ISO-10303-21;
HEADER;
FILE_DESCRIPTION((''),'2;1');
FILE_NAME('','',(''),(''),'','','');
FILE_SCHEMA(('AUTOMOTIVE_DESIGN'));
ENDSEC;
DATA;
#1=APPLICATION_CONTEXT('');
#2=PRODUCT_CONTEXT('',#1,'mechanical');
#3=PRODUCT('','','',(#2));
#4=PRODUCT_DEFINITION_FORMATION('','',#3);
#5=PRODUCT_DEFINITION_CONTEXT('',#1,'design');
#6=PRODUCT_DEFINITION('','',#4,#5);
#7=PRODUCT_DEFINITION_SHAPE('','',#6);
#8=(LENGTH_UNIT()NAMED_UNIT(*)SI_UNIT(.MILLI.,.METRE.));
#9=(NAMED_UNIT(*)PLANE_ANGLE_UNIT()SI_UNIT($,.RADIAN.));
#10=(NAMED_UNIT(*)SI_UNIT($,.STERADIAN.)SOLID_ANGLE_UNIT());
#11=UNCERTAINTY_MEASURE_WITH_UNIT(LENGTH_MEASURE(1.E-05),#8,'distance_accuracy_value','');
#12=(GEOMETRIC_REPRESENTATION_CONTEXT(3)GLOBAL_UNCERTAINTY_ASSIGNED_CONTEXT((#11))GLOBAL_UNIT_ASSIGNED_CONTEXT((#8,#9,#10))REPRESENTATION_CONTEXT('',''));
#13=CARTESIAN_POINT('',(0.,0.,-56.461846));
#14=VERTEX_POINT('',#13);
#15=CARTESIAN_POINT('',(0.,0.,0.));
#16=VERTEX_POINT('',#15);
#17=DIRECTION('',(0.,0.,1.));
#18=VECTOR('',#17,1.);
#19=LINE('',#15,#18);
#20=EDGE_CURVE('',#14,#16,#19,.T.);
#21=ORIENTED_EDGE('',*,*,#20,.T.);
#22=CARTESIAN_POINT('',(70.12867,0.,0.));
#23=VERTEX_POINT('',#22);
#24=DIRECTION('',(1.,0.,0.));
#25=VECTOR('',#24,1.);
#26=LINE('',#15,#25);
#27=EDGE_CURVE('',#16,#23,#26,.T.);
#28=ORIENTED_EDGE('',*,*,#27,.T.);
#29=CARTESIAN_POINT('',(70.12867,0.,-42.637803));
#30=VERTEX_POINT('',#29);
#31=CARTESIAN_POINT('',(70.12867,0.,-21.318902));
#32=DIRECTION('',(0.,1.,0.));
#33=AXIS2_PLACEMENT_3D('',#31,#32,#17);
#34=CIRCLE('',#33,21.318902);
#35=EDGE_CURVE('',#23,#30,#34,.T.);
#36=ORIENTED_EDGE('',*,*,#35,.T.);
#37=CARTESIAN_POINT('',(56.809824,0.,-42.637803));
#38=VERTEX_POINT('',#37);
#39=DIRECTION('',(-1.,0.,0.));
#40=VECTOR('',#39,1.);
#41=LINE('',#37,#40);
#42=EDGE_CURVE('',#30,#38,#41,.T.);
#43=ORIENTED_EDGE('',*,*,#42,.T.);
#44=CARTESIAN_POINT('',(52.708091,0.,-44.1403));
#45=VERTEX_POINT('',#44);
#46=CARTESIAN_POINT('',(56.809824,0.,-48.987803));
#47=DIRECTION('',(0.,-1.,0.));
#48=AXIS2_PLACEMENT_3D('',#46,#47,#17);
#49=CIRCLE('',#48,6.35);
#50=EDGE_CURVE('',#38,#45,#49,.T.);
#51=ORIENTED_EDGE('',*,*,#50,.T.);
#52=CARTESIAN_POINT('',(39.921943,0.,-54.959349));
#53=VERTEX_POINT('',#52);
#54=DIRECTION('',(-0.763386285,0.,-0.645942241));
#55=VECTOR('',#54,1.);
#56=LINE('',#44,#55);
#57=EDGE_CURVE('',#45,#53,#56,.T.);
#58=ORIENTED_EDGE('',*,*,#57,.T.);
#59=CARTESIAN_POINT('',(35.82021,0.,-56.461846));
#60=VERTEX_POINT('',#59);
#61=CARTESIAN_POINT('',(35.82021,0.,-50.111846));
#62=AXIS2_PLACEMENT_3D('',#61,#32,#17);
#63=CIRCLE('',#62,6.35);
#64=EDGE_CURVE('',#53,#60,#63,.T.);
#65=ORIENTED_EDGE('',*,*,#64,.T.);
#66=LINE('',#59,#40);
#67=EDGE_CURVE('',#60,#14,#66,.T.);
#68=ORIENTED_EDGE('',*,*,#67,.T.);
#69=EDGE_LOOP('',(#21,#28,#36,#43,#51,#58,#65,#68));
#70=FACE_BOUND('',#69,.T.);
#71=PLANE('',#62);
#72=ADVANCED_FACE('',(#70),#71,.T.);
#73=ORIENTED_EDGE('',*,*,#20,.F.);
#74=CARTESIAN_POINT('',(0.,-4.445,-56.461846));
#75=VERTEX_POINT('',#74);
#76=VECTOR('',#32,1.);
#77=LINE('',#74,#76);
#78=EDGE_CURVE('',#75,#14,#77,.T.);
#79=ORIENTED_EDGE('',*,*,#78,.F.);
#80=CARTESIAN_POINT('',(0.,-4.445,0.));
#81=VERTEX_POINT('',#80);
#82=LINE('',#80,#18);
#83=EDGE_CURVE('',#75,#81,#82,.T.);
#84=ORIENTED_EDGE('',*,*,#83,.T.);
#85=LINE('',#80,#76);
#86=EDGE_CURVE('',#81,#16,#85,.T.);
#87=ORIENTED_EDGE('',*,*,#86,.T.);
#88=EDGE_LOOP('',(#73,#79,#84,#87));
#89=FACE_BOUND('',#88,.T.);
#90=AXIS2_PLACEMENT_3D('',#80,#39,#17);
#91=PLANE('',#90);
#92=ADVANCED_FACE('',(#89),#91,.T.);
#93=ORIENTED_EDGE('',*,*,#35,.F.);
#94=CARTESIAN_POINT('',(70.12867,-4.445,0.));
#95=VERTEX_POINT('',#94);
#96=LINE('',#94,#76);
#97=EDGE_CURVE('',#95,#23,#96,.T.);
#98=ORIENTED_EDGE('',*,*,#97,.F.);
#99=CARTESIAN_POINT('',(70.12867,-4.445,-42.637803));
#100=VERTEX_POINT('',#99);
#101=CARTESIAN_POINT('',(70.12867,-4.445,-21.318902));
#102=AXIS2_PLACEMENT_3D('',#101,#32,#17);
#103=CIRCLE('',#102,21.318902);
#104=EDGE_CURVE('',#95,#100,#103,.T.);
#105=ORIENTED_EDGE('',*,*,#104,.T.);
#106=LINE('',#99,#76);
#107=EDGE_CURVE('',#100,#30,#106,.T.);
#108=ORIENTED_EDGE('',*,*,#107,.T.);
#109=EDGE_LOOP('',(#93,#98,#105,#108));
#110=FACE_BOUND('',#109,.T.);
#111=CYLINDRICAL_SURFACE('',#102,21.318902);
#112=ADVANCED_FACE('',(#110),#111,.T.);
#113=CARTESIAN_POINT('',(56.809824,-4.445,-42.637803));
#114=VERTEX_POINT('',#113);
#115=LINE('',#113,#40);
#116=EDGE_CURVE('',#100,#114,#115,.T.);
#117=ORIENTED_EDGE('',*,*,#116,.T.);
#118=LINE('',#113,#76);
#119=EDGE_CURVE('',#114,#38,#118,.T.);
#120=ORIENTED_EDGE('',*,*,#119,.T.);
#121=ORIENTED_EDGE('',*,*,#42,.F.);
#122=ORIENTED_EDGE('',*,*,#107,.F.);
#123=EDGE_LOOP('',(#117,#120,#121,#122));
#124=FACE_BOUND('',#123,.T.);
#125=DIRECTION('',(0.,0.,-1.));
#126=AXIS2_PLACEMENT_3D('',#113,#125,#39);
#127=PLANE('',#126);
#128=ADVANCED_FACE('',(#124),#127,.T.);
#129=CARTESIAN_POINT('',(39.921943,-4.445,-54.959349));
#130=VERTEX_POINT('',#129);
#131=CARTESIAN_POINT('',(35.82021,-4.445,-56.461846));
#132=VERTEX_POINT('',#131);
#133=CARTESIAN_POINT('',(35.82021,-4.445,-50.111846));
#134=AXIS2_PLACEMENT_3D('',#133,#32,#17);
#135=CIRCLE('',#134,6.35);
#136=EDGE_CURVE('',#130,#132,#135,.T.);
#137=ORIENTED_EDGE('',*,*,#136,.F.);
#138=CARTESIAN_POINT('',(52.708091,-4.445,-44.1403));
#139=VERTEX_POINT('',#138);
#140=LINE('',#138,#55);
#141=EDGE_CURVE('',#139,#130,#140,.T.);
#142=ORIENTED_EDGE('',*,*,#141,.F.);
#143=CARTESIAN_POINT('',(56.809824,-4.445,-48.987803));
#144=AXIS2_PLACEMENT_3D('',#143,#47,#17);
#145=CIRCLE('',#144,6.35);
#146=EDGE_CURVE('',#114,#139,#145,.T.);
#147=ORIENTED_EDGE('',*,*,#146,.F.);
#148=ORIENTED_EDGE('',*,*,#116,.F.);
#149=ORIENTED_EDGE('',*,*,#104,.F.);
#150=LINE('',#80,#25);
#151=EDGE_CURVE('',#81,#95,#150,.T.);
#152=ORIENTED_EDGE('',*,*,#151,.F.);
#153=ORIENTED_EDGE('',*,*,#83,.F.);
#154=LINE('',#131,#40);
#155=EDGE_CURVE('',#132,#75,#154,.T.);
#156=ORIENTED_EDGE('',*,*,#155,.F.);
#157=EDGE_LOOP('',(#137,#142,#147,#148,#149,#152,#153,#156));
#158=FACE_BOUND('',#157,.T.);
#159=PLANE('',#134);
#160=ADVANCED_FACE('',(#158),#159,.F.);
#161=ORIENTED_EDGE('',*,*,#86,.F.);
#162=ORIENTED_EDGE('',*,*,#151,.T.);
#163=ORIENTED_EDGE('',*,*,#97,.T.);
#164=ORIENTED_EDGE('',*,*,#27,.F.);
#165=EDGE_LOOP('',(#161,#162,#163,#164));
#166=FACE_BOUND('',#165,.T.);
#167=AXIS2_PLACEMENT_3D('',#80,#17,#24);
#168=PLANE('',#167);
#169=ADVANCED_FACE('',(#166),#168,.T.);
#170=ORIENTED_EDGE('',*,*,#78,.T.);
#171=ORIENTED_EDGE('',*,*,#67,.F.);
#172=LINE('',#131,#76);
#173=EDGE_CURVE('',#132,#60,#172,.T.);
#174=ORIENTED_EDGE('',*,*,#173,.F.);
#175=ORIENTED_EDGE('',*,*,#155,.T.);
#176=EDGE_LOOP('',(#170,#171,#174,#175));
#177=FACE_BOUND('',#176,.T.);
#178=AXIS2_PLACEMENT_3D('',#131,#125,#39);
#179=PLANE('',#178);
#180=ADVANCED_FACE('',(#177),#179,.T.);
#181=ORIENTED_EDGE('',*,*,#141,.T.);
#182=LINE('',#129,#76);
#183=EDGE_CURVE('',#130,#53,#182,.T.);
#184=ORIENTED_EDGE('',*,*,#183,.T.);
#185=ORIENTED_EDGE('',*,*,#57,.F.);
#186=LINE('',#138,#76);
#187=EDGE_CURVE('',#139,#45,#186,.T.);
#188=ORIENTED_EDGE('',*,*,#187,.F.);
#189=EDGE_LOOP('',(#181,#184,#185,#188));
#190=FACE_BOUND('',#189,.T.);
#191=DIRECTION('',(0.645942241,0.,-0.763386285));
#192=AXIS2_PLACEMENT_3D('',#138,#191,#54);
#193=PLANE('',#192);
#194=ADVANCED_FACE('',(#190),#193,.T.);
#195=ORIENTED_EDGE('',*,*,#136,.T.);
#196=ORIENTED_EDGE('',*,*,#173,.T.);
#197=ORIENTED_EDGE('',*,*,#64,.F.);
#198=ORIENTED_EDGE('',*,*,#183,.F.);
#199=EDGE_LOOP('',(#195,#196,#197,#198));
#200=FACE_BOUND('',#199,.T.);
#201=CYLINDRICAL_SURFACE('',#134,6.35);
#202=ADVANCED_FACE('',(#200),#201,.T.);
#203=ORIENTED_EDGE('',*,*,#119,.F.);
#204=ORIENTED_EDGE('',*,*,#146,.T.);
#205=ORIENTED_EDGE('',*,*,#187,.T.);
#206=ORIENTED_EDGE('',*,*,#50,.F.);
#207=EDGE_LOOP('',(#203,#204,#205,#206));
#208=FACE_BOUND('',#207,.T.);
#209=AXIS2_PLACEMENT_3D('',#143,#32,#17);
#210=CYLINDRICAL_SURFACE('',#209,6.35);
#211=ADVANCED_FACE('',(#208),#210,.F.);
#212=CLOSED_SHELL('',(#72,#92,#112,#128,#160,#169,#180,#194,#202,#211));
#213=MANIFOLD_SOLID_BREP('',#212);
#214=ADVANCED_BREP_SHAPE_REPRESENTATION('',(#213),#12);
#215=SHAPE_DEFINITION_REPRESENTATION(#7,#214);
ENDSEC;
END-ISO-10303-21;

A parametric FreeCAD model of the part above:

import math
import FreeCAD as App
import Part
import Sketcher

V = App.Vector
Q = App.Units.Quantity

doc = App.newDocument("Part")
params = doc.addObject("Spreadsheet::Sheet", "Params")
for row, (alias, value) in enumerate([
    ("sketch1_radius", "0.25 in"),
    ("pad1_length", "0.175 in"),
], start=1):
    params.set(f"A{row}", alias)
    params.set(f"B{row}", "=" + value)
    params.setAlias(f"B{row}", alias)

body = doc.addObject("PartDesign::Body", "Body")

sketch1 = doc.addObject("Sketcher::SketchObject", "Sketch")
body.addObject(sketch1)
sketch1.AttachmentSupport = (doc.XZ_Plane, [""])
sketch1.MapMode = "FlatFace"
sketch1.addGeometry(Part.LineSegment(V(0, 0, 0), V(70.1, 0, 0)), False)
sketch1.addGeometry(Part.ArcOfCircle(Part.Circle(V(70.1, -21.3, 0), V(0, 0, 1), 21.3), math.radians(-90), math.radians(90)), False)
sketch1.addGeometry(Part.LineSegment(V(70.1, -42.6, 0), V(56.8, -42.6, 0)), False)
sketch1.addGeometry(Part.ArcOfCircle(Part.Circle(V(56.8, -49, 0), V(0, 0, 1), 6.3), math.radians(90), math.radians(130)), False)
sketch1.addGeometry(Part.LineSegment(V(52.7, -44.1, 0), V(39.9, -55, 0)), False)
sketch1.addGeometry(Part.ArcOfCircle(Part.Circle(V(35.8, -50.1, 0), V(0, 0, 1), 6.4), math.radians(-90), math.radians(-50)), False)
sketch1.addGeometry(Part.LineSegment(V(35.8, -56.5, 0), V(0, -56.5, 0)), False)
sketch1.addGeometry(Part.LineSegment(V(0, -56.5, 0), V(0, 0, 0)), False)
sketch1.addConstraint(Sketcher.Constraint("Tangent", 0, 2, 1, 2))
sketch1.addConstraint(Sketcher.Constraint("Tangent", 1, 1, 2, 1))
sketch1.addConstraint(Sketcher.Constraint("Tangent", 2, 2, 3, 1))
sketch1.addConstraint(Sketcher.Constraint("Tangent", 3, 2, 4, 1))
sketch1.addConstraint(Sketcher.Constraint("Tangent", 4, 2, 5, 2))
sketch1.addConstraint(Sketcher.Constraint("Tangent", 5, 1, 6, 1))
sketch1.addConstraint(Sketcher.Constraint("Coincident", 6, 2, 7, 1))
sketch1.addConstraint(Sketcher.Constraint("Coincident", 7, 2, 0, 1))
sketch1.addConstraint(Sketcher.Constraint("Horizontal", 0))
sketch1.addConstraint(Sketcher.Constraint("Horizontal", 2))
sketch1.addConstraint(Sketcher.Constraint("Horizontal", 6))
sketch1.addConstraint(Sketcher.Constraint("Vertical", 7))
sketch1.addConstraint(Sketcher.Constraint("Coincident", 7, 2, -1, 1))
sketch1.addConstraint(Sketcher.Constraint("Equal", 3, 5))
sketch1.addConstraint(Sketcher.Constraint("Radius", 3, Q("0.25 in")))
sketch1.addConstraint(Sketcher.Constraint("Radius", 1, 21.318902))
sketch1.addConstraint(Sketcher.Constraint("DistanceX", 0, 1, 0, 2, 70.12867))
sketch1.addConstraint(Sketcher.Constraint("DistanceX", 6, 2, 6, 1, 35.82021))
sketch1.addConstraint(Sketcher.Constraint("DistanceY", 3, 2, -1, 1, 44.1403))
sketch1.addConstraint(Sketcher.Constraint("Distance", 4, 16.74925))
sketch1.setExpression("Constraints[14]", "Params.sketch1_radius")
pad1 = doc.addObject("PartDesign::Pad", "Pad")
body.addObject(pad1)
pad1.Profile = sketch1
pad1.setExpression("Length", "Params.pad1_length")

doc.recompute()
